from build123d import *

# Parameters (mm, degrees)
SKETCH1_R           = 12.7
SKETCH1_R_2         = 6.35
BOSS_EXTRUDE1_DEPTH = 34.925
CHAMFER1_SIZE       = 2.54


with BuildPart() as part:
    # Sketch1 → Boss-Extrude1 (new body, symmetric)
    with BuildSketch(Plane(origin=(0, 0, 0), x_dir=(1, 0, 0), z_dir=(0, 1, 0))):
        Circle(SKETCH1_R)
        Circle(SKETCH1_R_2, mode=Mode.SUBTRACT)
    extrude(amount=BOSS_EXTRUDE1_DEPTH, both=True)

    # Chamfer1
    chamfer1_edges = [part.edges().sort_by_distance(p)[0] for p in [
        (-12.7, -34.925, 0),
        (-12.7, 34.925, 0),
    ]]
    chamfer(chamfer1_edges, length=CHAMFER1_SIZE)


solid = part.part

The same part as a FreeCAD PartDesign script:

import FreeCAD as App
import Part
import Sketcher
from FreeCAD import Vector
Q = App.Units.Quantity


def edges_at(feature, points):
    """Names of the edges that pass closest to the given points."""
    edges = feature.Shape.Edges
    near = lambda p: min(range(len(edges)), key=lambda i: edges[i].distToShape(Part.Vertex(*p))[0])
    return sorted({f"Edge{near(p) + 1}" for p in points})

doc = App.newDocument("Part")
params = doc.addObject("Spreadsheet::Sheet", "Params")
for row, (alias, value) in enumerate([
    ("sketch1_diameter", "1 in"),
    ("sketch1_diameter2", "0.5 in"),
    ("pad1_length", "2.75 in"),
    ("chamfer_size", "0.1 in"),
], start=1):
    params.set(f"A{row}", alias)
    params.set(f"B{row}", "=" + value)
    params.setAlias(f"B{row}", alias)

body = doc.addObject("PartDesign::Body", "Body")

# Sketch on XZ plane
sketch1 = body.newObject("Sketcher::SketchObject", "Sketch")
sketch1.AttachmentSupport = (doc.getObject("XZ_Plane"), [""])
sketch1.MapMode = "FlatFace"
sketch1.addGeometry([
    Part.Circle(Vector(0, 0, 0), Vector(0, 0, 1), 13),
    Part.Circle(Vector(0, 0, 0), Vector(0, 0, 1), 6),
], False)
sketch1.addConstraint([
    Sketcher.Constraint("Coincident", 0, 3, -1, 1),
    Sketcher.Constraint("Coincident", 1, 3, -1, 1),
    Sketcher.Constraint("Diameter", 0, Q("1 in")),
    Sketcher.Constraint("Diameter", 1, Q("0.5 in")),
])
sketch1.setExpression("Constraints[2]", "Params.sketch1_diameter")
sketch1.setExpression("Constraints[3]", "Params.sketch1_diameter2")
pad1 = body.newObject("PartDesign::Pad", "Pad")
pad1.Profile = sketch1
pad1.setExpression("Length", "Params.pad1_length")
pad1.Midplane = True
doc.recompute()

chamfer = body.newObject("PartDesign::Chamfer", "Chamfer")
chamfer.Base = (pad1, edges_at(pad1, [(-12.7, -34.925, 0), (-12.7, 34.925, 0)]))
chamfer.setExpression("Size", "Params.chamfer_size")

doc.recompute()
